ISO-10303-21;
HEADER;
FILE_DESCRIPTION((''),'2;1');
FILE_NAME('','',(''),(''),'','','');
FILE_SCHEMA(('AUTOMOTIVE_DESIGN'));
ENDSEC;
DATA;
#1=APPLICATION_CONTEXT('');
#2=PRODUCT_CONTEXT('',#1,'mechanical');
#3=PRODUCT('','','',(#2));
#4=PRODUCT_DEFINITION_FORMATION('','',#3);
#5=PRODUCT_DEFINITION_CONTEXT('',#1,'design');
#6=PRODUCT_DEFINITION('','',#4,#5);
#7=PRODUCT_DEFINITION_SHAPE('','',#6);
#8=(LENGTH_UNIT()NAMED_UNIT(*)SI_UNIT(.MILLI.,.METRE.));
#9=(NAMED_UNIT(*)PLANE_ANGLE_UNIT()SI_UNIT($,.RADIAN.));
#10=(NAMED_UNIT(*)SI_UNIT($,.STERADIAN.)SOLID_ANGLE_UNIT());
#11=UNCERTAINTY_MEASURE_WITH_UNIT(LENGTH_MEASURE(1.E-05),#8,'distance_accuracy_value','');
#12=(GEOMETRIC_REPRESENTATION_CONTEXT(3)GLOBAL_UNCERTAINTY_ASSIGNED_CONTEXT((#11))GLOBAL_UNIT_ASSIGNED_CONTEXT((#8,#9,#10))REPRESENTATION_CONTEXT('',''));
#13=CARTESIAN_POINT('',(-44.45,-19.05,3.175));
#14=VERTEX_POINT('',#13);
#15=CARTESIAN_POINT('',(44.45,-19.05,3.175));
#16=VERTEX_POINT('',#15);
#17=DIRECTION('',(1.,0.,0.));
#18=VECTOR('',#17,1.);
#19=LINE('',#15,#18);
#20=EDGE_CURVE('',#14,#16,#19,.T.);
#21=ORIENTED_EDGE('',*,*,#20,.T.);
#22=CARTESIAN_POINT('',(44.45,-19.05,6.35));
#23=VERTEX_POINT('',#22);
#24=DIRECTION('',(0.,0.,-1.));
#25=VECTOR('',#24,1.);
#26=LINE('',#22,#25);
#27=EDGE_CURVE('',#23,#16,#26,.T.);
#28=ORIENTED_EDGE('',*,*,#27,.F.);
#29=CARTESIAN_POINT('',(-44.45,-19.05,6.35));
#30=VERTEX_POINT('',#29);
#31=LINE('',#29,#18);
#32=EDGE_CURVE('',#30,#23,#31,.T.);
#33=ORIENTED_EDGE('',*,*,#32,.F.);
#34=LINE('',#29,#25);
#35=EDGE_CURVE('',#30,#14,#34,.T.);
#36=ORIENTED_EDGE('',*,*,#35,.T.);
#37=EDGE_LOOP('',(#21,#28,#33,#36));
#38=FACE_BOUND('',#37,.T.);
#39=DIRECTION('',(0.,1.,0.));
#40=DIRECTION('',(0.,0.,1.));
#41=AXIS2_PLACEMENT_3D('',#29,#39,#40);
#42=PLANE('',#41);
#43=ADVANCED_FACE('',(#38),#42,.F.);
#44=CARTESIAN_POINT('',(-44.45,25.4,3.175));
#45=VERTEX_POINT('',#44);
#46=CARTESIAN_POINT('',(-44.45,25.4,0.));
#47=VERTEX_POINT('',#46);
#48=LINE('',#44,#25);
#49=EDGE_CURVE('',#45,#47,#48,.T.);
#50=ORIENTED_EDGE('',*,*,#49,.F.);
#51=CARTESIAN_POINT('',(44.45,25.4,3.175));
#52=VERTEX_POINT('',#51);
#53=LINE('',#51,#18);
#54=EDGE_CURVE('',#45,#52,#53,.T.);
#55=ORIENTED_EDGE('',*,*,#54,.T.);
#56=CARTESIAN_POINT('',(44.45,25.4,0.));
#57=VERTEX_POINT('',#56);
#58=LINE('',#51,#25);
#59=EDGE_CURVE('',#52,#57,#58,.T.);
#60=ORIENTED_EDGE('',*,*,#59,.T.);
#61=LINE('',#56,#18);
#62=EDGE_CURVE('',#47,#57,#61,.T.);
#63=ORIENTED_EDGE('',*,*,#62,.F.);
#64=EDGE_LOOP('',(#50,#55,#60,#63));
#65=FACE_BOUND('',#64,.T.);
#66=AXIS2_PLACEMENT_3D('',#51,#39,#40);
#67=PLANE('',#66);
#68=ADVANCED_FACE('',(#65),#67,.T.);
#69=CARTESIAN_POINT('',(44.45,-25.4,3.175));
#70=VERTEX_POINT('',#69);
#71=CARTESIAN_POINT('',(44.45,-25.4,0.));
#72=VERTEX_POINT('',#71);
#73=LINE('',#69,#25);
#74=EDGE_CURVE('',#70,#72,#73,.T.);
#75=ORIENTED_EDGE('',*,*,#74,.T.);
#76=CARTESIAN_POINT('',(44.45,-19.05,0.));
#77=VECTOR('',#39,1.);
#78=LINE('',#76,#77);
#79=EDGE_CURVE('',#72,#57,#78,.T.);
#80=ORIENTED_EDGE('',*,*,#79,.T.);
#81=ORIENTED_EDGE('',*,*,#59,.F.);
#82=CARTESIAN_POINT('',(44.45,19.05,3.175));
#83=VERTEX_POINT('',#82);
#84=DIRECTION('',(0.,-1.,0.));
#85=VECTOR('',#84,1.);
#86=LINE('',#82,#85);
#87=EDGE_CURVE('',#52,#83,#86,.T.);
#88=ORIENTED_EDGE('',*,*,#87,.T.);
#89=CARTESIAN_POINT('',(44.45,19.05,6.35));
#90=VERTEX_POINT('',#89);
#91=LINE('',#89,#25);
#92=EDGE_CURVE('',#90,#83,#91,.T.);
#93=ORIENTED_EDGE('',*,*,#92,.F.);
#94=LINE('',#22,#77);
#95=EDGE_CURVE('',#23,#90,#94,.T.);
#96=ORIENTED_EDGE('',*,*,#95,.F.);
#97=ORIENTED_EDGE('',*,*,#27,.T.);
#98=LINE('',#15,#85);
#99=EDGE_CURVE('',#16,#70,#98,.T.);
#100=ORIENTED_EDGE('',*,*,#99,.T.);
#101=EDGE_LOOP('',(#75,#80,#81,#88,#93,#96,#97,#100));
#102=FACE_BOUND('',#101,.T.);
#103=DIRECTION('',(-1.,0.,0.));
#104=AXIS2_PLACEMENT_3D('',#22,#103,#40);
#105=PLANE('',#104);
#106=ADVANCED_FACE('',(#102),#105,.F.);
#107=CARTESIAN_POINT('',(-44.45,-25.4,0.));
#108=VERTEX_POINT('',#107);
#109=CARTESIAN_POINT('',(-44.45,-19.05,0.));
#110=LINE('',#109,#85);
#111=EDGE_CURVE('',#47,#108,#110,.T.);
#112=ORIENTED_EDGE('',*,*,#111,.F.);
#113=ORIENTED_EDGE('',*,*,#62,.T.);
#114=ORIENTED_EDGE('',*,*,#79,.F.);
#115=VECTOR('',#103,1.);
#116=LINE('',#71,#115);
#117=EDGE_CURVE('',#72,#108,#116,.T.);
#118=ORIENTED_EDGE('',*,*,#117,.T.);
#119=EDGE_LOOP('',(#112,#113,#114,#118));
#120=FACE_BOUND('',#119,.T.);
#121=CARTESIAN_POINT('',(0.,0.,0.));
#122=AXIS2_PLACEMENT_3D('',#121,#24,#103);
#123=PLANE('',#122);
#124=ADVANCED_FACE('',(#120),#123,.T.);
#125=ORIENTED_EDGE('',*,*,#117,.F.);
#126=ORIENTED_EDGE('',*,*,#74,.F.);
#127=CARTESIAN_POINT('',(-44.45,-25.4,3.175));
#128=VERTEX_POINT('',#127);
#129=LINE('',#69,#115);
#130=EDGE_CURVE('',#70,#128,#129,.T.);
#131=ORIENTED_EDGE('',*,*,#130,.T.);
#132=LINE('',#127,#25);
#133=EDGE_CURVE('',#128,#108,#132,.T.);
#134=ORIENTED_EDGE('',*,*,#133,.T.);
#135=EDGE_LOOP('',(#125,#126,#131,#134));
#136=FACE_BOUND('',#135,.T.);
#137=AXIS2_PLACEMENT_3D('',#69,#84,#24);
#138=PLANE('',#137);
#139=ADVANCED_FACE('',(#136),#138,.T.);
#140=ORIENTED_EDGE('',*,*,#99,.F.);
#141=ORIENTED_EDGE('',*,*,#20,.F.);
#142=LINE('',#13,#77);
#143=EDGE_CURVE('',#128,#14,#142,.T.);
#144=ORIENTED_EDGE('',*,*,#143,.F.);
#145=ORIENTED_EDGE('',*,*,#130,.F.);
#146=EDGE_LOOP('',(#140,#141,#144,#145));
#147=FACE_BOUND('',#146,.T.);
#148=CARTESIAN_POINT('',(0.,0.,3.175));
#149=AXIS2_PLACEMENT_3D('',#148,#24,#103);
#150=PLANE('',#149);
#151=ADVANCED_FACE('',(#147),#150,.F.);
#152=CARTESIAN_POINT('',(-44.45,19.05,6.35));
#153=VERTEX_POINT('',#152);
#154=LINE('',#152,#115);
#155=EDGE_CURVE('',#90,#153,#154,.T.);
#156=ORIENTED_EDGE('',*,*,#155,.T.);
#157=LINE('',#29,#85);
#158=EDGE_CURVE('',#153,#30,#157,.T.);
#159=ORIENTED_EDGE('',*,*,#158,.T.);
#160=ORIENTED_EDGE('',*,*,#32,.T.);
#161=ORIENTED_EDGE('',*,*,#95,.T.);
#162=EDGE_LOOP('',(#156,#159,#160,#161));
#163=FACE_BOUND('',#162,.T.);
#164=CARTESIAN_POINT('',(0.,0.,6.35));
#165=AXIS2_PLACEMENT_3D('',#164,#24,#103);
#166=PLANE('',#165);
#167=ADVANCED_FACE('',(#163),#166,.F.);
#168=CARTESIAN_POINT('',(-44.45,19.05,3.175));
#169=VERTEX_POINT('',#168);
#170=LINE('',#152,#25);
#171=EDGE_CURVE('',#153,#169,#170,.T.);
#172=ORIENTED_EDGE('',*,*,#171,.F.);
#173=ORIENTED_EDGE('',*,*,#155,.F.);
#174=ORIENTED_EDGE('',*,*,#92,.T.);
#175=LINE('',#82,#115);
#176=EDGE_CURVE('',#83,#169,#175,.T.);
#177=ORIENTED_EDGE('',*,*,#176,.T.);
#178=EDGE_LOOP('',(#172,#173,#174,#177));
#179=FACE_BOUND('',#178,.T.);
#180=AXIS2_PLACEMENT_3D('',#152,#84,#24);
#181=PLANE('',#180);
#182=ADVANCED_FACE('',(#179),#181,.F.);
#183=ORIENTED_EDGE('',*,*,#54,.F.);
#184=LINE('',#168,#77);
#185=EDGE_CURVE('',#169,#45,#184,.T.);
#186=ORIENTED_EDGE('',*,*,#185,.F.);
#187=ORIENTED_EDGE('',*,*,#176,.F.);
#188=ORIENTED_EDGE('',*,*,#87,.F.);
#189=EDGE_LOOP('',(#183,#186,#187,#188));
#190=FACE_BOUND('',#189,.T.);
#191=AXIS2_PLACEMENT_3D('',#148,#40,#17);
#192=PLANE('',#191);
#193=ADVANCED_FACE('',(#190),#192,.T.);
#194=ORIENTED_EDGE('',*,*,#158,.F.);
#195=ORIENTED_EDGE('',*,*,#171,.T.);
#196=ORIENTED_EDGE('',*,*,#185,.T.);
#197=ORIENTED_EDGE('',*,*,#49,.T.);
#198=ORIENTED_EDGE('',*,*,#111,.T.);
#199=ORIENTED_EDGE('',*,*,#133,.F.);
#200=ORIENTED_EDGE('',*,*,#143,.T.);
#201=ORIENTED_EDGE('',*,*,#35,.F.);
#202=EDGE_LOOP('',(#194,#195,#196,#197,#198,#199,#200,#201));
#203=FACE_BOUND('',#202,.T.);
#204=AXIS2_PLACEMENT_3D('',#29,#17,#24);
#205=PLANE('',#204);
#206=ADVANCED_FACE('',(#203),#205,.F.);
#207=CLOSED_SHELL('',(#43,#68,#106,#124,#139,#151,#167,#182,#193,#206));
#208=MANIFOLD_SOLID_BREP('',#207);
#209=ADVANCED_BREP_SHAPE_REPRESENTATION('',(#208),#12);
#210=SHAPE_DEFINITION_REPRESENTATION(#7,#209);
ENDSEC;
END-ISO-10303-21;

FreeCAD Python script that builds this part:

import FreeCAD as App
import Part
import Sketcher
from FreeCAD import Vector
Q = App.Units.Quantity


def add_polygon(sketch, points):
    """Adds a closed chain of lines whose ends are joined by coincident constraints."""
    first, n = sketch.GeometryCount, len(points)
    for a, b in zip(points, points[1:] + points[:1]):
        sketch.addGeometry(Part.LineSegment(App.Vector(*a, 0), App.Vector(*b, 0)), False)
    for i in range(n):
        sketch.addConstraint(Sketcher.Constraint("Coincident", first + i, 2, first + (i + 1) % n, 1))

doc = App.newDocument("Part")
body = doc.addObject("PartDesign::Body", "Body")

# Sketch on XY plane
sketch1 = doc.addObject("Sketcher::SketchObject", "Sketch")
body.addObject(sketch1)
sketch1.AttachmentSupport = (doc.XY_Plane, [""])
sketch1.MapMode = "FlatFace"
add_polygon(sketch1, [(-44, 19), (-44, -19), (44, -19), (44, 19)])  # lines 0-3
sketch1.addConstraint([
    Sketcher.Constraint("Vertical", 0),
    Sketcher.Constraint("Horizontal", 1),
    Sketcher.Constraint("Vertical", 2),
    Sketcher.Constraint("Horizontal", 3),
    Sketcher.Constraint("Symmetric", 0, 2, 2, 2, -1, 1),
    Sketcher.Constraint("DistanceX", 1, 1, 1, 2, Q("3.5 in")),
    Sketcher.Constraint("DistanceY", 0, 2, 0, 1, Q("1.5 in")),
])
pad1 = doc.addObject("PartDesign::Pad", "Pad")
body.addObject(pad1)
pad1.Profile = sketch1
pad1.Length = Q("0.25 in")

# Sketch on XY plane
sketch2 = doc.addObject("Sketcher::SketchObject", "Sketch001")
body.addObject(sketch2)
sketch2.AttachmentSupport = (doc.XY_Plane, [""])
sketch2.MapMode = "FlatFace"
add_polygon(sketch2, [(44, 25), (44, 19), (-44, 19), (-44, 25)])  # lines 0-3
add_polygon(sketch2, [(44, -19), (44, -25), (-44, -25), (-44, -19)])  # lines 4-7
sketch2.addConstraint([
    Sketcher.Constraint("Vertical", 0),
    Sketcher.Constraint("Horizontal", 1),
    Sketcher.Constraint("Vertical", 2),
    Sketcher.Constraint("Horizontal", 3),
    Sketcher.Constraint("Vertical", 4),
    Sketcher.Constraint("Horizontal", 5),
    Sketcher.Constraint("Vertical", 6),
    Sketcher.Constraint("Horizontal", 7),
    Sketcher.Constraint("Symmetric", 2, 2, 4, 2, -1, 1),
    Sketcher.Constraint("Symmetric", 0, 2, 6, 2, -1, 1),
    Sketcher.Constraint("Vertical", 3, 2, 4, 2),
    Sketcher.Constraint("DistanceX", 1, 2, 1, 1, Q("3.5 in")),
    Sketcher.Constraint("DistanceY", -1, 1, 2, 2, Q("1 in")),
    Sketcher.Constraint("DistanceY", 0, 2, 0, 1, Q("0.25 in")),
])
pad2 = doc.addObject("PartDesign::Pad", "Pad001")
body.addObject(pad2)
pad2.Profile = sketch2
pad2.Length = Q("0.125 in")

doc.recompute()
